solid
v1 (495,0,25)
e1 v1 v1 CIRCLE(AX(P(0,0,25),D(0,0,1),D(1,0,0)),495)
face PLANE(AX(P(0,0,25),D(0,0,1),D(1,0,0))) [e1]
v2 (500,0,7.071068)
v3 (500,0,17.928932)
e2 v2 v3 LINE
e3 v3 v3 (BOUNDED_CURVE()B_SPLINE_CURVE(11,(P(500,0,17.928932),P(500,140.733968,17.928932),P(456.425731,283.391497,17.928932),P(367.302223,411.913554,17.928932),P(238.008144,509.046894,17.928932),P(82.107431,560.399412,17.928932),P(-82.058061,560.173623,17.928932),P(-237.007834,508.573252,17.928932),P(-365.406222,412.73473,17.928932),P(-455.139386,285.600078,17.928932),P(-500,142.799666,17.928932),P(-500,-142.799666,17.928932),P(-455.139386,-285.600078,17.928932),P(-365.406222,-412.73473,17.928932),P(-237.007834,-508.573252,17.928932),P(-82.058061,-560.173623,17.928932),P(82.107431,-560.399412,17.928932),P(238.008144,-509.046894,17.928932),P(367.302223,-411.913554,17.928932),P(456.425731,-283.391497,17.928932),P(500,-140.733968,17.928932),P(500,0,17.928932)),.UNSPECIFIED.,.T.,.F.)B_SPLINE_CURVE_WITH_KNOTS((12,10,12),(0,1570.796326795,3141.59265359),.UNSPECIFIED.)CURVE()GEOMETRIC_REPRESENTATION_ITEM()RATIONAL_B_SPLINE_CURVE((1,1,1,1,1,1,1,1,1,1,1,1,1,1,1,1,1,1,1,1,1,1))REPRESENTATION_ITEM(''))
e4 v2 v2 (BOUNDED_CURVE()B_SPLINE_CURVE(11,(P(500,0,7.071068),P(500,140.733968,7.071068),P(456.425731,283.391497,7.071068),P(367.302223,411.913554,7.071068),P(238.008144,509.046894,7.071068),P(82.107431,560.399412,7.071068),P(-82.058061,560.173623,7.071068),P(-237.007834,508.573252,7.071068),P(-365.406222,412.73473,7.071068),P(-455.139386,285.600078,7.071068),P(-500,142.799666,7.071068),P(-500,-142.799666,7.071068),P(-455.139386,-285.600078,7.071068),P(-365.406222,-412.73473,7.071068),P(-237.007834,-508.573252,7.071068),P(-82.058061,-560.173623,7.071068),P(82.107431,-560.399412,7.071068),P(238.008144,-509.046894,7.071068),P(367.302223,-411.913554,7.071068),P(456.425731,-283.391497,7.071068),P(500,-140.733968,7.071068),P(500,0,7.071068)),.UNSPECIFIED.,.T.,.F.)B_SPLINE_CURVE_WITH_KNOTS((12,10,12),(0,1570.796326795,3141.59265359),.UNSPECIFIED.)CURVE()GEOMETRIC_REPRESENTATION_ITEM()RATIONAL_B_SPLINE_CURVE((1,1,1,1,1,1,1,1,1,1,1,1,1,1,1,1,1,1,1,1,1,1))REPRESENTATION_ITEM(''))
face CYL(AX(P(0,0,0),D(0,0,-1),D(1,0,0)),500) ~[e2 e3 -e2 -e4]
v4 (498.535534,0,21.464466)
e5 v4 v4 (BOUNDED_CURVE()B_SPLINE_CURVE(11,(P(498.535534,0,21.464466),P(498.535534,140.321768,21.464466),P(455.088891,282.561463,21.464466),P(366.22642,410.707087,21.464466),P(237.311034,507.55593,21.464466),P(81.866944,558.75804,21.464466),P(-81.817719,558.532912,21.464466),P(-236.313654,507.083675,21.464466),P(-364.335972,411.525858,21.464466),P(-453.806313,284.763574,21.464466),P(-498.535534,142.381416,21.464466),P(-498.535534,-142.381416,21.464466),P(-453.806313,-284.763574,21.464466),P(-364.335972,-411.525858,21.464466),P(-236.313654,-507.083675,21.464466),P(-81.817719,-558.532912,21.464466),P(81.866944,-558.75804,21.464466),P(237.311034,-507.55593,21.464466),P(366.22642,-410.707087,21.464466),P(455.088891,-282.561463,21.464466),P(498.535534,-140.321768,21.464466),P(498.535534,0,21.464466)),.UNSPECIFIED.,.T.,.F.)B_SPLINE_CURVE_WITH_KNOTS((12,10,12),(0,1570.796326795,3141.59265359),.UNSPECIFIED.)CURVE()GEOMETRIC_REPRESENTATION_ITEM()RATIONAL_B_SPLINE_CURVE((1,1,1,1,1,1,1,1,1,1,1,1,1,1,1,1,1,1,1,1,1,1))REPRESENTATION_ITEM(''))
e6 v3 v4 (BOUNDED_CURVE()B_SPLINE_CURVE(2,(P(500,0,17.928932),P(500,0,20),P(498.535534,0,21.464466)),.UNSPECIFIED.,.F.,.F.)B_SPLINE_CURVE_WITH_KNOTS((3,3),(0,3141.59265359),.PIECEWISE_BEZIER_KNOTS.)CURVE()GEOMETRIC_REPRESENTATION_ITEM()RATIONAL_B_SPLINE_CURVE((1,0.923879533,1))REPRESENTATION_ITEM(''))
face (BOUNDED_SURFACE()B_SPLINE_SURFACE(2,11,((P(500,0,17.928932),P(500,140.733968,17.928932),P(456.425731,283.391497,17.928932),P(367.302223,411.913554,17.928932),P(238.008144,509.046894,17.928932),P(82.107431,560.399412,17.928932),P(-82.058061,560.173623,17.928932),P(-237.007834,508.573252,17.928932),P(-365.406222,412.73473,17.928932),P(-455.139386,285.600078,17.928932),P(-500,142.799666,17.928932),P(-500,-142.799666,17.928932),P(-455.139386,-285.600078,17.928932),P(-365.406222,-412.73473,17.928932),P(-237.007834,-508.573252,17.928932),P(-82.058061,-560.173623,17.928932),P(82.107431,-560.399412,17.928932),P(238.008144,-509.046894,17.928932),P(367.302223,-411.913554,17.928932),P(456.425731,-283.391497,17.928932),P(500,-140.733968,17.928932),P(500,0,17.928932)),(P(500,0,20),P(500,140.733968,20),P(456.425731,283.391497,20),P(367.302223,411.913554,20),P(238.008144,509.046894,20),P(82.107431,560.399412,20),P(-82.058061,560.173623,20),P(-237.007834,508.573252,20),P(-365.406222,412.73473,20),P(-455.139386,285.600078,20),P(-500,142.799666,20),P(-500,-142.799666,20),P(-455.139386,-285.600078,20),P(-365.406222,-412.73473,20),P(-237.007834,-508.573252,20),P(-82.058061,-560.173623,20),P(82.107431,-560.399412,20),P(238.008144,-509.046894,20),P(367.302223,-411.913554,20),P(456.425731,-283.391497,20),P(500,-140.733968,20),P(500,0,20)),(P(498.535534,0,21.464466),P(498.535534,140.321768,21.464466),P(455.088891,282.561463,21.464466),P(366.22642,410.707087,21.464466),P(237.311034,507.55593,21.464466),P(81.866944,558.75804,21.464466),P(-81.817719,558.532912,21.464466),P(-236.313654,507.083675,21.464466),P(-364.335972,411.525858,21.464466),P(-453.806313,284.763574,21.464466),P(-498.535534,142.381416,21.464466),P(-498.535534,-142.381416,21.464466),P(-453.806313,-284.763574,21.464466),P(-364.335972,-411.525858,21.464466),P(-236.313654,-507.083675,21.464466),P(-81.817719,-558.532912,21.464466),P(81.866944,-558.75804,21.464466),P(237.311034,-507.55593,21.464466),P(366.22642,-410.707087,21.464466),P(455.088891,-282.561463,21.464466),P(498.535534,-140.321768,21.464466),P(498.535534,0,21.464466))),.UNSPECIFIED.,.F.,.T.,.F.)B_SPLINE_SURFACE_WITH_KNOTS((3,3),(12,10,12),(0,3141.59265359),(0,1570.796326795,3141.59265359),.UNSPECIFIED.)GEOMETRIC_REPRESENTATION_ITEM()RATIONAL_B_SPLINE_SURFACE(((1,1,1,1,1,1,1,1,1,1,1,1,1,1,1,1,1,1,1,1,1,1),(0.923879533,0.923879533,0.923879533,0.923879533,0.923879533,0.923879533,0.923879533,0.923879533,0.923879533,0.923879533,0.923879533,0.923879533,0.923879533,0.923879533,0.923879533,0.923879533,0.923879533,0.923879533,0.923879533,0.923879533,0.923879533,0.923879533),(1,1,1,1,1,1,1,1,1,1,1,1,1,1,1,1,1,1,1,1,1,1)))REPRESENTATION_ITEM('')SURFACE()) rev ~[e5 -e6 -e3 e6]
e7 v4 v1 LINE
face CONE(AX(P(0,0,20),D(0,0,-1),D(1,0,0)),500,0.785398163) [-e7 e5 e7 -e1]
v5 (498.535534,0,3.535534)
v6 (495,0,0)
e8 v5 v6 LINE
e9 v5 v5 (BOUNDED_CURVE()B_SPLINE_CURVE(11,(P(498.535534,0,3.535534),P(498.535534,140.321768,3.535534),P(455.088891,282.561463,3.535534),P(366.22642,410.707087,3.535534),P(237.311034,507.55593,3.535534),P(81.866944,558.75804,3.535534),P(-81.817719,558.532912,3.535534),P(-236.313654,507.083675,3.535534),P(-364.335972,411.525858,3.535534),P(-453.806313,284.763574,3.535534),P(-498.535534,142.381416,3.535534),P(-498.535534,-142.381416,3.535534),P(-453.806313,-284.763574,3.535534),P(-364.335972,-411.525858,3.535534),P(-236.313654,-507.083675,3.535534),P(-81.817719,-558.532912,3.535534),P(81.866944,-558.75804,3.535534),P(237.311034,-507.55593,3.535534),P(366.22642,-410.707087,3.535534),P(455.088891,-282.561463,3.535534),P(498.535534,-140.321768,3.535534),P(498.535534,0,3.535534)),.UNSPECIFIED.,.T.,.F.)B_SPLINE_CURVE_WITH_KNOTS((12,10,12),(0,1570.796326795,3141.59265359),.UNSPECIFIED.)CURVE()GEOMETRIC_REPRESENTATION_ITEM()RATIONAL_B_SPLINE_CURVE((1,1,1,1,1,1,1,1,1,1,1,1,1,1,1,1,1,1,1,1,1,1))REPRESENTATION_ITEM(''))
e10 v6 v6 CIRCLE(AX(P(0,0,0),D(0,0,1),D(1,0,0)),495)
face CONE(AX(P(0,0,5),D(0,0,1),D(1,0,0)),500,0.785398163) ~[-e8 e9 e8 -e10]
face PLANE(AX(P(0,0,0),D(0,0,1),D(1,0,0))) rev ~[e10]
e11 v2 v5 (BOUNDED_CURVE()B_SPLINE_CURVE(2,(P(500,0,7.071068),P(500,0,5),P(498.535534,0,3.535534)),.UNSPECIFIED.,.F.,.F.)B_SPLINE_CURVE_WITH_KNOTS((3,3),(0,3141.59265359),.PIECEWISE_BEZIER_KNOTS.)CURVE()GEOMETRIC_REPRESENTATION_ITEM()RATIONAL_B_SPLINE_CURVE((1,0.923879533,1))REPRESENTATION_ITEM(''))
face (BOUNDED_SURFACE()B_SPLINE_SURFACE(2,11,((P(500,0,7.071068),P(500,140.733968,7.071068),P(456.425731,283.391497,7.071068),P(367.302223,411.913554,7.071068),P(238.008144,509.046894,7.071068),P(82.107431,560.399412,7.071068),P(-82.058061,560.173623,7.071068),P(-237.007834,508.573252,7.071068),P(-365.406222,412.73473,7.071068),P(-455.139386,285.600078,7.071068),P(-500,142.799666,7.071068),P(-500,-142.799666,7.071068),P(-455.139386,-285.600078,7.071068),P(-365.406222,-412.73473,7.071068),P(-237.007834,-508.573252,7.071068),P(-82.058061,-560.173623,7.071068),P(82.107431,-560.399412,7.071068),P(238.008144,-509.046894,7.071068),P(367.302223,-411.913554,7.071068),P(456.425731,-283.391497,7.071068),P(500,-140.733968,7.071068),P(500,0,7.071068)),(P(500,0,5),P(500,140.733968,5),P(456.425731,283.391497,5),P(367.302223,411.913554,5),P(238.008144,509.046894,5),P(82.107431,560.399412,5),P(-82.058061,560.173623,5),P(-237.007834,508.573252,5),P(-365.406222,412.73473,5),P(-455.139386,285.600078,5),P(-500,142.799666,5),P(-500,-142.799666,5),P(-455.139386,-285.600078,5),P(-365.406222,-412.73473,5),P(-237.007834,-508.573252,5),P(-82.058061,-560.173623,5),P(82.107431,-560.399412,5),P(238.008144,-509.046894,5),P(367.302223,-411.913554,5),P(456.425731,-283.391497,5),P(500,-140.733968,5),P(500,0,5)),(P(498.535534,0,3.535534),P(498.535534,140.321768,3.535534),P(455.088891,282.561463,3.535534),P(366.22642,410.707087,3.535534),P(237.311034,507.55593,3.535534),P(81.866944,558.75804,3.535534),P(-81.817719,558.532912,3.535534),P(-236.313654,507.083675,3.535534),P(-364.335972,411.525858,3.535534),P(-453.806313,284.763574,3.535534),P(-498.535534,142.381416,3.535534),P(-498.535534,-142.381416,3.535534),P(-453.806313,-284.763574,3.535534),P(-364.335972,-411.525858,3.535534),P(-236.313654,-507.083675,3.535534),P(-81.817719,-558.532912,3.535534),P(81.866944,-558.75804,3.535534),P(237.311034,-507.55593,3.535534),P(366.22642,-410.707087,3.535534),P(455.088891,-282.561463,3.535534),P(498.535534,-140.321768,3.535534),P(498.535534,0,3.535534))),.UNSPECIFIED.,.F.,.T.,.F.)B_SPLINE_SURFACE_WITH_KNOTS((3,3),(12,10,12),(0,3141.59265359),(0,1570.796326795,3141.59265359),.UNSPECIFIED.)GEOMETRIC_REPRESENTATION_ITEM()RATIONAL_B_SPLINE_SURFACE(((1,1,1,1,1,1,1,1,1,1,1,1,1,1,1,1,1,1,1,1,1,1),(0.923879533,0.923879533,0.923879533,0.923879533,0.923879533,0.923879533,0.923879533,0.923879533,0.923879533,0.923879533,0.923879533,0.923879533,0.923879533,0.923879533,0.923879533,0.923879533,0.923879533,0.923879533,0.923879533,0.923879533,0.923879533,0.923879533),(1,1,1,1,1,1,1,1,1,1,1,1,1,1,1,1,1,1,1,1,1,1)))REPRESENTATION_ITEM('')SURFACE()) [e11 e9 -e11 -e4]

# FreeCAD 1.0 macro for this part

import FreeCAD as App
import Part
import Sketcher

V = App.Vector


def edges_at(feature, points):
    """Names of the edges that pass closest to the given points."""
    edges = feature.Shape.Edges
    near = lambda p: min(range(len(edges)), key=lambda i: edges[i].distToShape(Part.Vertex(*p))[0])
    return sorted({f"Edge{near(p) + 1}" for p in points})

doc = App.newDocument("Part")
params = doc.addObject("Spreadsheet::Sheet", "Params")
for row, (alias, value) in enumerate([
    ("sketch1_diameter", "1000 mm"),
    ("pad1_length", "25 mm"),
    ("chamfer_size", "5 mm"),
    ("fillet_radius", "5 mm"),
], start=1):
    params.set(f"A{row}", alias)
    params.set(f"B{row}", "=" + value)
    params.setAlias(f"B{row}", alias)

body = doc.addObject("PartDesign::Body", "Body")

sketch1 = body.newObject("Sketcher::SketchObject", "Sketch")
sketch1.AttachmentSupport = (doc.getObject("XY_Plane"), [""])
sketch1.MapMode = "FlatFace"
sketch1.addGeometry(Part.Circle(V(0, 0, 0), V(0, 0, 1), 500), False)
sketch1.addConstraint(Sketcher.Constraint("Coincident", 0, 3, -1, 1))
sketch1.addConstraint(Sketcher.Constraint("Diameter", 0, 1000.0))
sketch1.setExpression("Constraints[1]", "Params.sketch1_diameter")
pad1 = body.newObject("PartDesign::Pad", "Pad")
pad1.Profile = sketch1
pad1.setExpression("Length", "Params.pad1_length")
doc.recompute()

chamfer = body.newObject("PartDesign::Chamfer", "Chamfer")
chamfer.Base = (pad1, edges_at(pad1, [(-500, 0, 25), (-500, 0, 0)]))
chamfer.setExpression("Size", "Params.chamfer_size")
doc.recompute()

fillet = body.newObject("PartDesign::Fillet", "Fillet")
fillet.Base = (chamfer, edges_at(chamfer, [(500, 0, 12.5), (-500, 0, 5), (-500, 0, 20)]))
fillet.setExpression("Radius", "Params.fillet_radius")

doc.recompute()
